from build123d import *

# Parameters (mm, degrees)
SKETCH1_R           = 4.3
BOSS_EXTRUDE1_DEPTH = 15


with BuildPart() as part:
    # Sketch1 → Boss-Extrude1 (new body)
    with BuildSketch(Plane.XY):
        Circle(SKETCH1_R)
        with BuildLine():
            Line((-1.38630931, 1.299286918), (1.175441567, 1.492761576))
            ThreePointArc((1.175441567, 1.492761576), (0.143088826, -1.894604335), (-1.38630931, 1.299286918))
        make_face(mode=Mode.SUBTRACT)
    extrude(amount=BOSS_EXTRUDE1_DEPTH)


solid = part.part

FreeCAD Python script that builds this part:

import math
import FreeCAD as App
import Part
import Sketcher

V = App.Vector
Q = App.Units.Quantity

doc = App.newDocument("Part")
params = doc.addObject("Spreadsheet::Sheet", "Params")
for row, (alias, value) in enumerate([
    ("sketch1_diameter", "8.6 mm"),
    ("sketch1_radius", "1.9 mm"),
    ("pad1_length", "15 mm"),
], start=1):
    params.set(f"A{row}", alias)
    params.set(f"B{row}", "=" + value)
    params.setAlias(f"B{row}", alias)

body = doc.addObject("PartDesign::Body", "Body")

sketch1 = body.newObject("Sketcher::SketchObject", "Sketch")
sketch1.AttachmentSupport = (doc.getObject("XY_Plane"), [""])
sketch1.MapMode = "FlatFace"
sketch1.addGeometry(Part.Circle(V(0, 0, 0), V(0, 0, 1), 4.3), False)
sketch1.addGeometry(Part.ArcOfCircle(Part.Circle(V(0, 0, 0), V(0, 0, 1), 1.9), math.radians(137), math.radians(412)), False)
sketch1.addGeometry(Part.LineSegment(V(-1.4, 1.3, 0), V(1.2, 1.5, 0)), False)
sketch1.addConstraint(Sketcher.Constraint("Coincident", 1, 1, 2, 1))
sketch1.addConstraint(Sketcher.Constraint("Coincident", 2, 2, 1, 2))
sketch1.addConstraint(Sketcher.Constraint("Coincident", 0, 3, -1, 1))
sketch1.addConstraint(Sketcher.Constraint("Coincident", 1, 3, -1, 1))
sketch1.addConstraint(Sketcher.Constraint("Diameter", 0, Q("8.6 mm")))
sketch1.addConstraint(Sketcher.Constraint("Radius", 1, Q("1.9 mm")))
sketch1.addConstraint(Sketcher.Constraint("DistanceX", 1, 1, -1, 1, Q("1.386309 mm")))
sketch1.addConstraint(Sketcher.Constraint("DistanceX", -1, 1, 2, 2, Q("1.175442 mm")))
sketch1.setExpression("Constraints[4]", "Params.sketch1_diameter")
sketch1.setExpression("Constraints[5]", "Params.sketch1_radius")
pad1 = body.newObject("PartDesign::Pad", "Pad")
pad1.Profile = sketch1
pad1.setExpression("Length", "Params.pad1_length")

doc.recompute()
